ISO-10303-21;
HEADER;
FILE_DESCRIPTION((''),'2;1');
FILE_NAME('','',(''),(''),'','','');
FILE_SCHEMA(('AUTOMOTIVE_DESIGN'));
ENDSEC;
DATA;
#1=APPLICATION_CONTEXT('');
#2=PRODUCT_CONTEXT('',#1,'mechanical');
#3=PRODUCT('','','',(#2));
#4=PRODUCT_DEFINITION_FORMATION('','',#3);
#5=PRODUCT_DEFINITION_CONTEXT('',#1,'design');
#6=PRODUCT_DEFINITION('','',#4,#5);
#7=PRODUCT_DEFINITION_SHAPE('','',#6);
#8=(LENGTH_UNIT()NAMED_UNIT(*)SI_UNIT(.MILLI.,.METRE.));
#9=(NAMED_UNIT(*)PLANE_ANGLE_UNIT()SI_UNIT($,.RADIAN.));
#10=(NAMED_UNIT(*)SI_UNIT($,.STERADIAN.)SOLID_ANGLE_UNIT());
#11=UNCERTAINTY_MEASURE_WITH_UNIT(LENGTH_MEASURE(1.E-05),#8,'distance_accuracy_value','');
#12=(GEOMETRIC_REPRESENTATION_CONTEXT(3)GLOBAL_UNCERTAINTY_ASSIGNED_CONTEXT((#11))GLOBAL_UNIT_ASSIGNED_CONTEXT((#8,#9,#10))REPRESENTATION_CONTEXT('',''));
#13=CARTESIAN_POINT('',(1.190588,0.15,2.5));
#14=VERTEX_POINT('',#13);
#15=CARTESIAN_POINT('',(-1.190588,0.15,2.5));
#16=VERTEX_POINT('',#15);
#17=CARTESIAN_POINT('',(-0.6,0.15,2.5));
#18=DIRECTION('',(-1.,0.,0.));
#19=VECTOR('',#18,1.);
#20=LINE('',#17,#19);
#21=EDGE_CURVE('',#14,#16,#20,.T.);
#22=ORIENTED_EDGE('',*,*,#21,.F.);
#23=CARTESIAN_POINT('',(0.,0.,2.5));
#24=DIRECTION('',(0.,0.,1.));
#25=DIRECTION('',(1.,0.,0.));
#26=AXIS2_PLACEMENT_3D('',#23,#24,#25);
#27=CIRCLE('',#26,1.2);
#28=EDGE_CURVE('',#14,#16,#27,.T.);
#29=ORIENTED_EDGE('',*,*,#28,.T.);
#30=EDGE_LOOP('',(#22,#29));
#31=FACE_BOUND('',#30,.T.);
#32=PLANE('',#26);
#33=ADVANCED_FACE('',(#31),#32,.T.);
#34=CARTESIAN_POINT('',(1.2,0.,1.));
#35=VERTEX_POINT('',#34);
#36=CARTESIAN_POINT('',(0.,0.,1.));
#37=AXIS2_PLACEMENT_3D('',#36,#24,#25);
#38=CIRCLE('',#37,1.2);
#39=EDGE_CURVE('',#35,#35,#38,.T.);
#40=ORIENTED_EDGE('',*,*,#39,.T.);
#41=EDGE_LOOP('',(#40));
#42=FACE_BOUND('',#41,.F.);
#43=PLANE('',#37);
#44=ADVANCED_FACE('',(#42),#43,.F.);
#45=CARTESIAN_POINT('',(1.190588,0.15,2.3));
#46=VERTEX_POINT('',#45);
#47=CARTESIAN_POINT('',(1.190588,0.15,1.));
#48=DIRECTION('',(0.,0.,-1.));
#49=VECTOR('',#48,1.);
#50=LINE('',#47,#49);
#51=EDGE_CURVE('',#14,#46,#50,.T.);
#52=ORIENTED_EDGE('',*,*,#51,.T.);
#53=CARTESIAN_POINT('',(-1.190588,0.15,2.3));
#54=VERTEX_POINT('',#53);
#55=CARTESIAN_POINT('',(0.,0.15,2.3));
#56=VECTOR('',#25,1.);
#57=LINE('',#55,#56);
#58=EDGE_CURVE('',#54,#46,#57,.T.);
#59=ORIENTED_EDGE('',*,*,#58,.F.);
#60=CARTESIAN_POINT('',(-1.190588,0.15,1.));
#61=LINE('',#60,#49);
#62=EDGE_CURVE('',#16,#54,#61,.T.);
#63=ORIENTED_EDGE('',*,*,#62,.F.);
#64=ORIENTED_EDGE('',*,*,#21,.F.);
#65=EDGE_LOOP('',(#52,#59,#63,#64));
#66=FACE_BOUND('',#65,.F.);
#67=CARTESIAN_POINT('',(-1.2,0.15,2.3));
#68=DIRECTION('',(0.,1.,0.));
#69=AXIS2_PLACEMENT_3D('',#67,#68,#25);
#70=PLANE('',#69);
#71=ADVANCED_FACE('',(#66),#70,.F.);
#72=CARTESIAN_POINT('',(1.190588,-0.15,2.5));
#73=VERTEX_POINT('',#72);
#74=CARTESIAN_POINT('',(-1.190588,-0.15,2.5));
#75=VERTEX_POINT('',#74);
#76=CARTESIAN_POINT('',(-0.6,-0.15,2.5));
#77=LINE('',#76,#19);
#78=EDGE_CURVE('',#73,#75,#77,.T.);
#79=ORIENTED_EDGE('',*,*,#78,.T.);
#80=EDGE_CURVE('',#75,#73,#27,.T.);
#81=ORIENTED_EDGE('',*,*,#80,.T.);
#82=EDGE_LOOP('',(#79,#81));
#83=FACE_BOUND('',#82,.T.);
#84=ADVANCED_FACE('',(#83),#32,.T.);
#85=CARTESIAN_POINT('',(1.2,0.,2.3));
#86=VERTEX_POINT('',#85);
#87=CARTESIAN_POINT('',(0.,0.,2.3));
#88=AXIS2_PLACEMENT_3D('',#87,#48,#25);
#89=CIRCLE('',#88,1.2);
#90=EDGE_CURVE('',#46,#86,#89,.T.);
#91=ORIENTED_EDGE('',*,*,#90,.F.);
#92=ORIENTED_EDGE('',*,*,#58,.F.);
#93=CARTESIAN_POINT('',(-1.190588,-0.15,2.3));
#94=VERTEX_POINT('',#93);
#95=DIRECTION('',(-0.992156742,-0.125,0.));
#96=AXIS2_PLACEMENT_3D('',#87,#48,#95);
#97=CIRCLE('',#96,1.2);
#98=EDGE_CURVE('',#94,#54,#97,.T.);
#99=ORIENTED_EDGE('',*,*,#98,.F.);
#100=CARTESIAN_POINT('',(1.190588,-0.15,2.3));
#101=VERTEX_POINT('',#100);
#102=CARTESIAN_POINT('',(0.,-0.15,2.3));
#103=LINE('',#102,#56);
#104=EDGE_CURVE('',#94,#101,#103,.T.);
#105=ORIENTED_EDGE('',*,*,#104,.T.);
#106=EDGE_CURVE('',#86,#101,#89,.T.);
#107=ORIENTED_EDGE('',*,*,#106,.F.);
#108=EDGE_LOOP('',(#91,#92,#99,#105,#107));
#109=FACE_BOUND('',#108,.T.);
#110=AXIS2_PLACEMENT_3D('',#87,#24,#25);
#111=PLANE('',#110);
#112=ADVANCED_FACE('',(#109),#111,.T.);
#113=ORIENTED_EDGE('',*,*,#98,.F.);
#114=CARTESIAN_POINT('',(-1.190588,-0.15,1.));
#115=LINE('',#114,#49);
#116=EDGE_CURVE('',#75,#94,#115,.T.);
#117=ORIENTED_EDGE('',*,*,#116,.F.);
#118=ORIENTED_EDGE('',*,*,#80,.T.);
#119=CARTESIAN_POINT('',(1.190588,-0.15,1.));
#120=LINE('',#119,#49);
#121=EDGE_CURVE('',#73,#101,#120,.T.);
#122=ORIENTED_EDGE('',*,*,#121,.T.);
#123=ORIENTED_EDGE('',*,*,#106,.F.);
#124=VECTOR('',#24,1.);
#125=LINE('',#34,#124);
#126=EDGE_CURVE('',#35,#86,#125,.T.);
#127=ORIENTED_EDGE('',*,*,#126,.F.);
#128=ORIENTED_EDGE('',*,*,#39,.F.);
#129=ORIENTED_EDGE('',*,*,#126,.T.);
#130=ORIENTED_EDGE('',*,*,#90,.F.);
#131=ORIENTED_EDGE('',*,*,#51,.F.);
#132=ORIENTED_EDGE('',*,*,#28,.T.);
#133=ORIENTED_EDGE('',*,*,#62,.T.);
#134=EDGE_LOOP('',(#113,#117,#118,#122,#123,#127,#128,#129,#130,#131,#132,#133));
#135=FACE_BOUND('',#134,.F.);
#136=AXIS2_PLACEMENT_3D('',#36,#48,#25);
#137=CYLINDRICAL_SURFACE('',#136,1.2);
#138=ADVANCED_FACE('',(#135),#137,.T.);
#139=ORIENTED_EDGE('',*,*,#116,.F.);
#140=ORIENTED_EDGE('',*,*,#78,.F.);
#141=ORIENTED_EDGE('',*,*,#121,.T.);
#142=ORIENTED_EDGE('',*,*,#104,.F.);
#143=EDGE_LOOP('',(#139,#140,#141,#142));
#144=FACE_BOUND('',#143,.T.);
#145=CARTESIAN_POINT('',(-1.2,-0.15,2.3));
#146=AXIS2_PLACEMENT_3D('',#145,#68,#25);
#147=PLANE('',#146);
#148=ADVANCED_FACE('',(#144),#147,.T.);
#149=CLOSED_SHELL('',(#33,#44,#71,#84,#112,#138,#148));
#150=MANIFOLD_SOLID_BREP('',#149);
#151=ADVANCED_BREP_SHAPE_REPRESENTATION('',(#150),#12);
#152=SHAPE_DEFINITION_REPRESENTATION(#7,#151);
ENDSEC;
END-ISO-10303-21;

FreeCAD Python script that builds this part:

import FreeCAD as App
import Part
import Sketcher

V = App.Vector


def add_polygon(sketch, points):
    """Adds a closed chain of lines whose ends are joined by coincident constraints."""
    first, n = sketch.GeometryCount, len(points)
    for a, b in zip(points, points[1:] + points[:1]):
        sketch.addGeometry(Part.LineSegment(App.Vector(*a, 0), App.Vector(*b, 0)), False)
    for i in range(n):
        sketch.addConstraint(Sketcher.Constraint("Coincident", first + i, 2, first + (i + 1) % n, 1))

doc = App.newDocument("Part")
body = doc.addObject("PartDesign::Body", "Body")

# Sketch on XY plane
sketch1 = body.newObject("Sketcher::SketchObject", "Sketch")
sketch1.AttachmentSupport = (doc.getObject("XY_Plane"), [""])
sketch1.MapMode = "FlatFace"
sketch1.AttachmentOffset = App.Placement(V(0, 0, 2.3), App.Rotation())
add_polygon(sketch1, [(-1.2, 0.15), (-1.2, -0.15), (1.2, -0.15), (1.2, 0.15)])  # lines 0-3
sketch1.addConstraint([
    Sketcher.Constraint("Vertical", 0),
    Sketcher.Constraint("Horizontal", 1),
    Sketcher.Constraint("Vertical", 2),
    Sketcher.Constraint("Horizontal", 3),
    Sketcher.Constraint("Symmetric", 0, 2, 2, 2, -1, 1),
    Sketcher.Constraint("DistanceX", 1, 1, 1, 2, 2.4),
    Sketcher.Constraint("DistanceY", 0, 2, 0, 1, 0.3),
])
pad1 = body.newObject("PartDesign::Pad", "Pad")
pad1.Profile = sketch1
pad1.Length = 0.3
body2 = doc.addObject("PartDesign::Body", "Body001")

# Sketch on XY plane
sketch2 = body2.newObject("Sketcher::SketchObject", "Sketch001")
sketch2.AttachmentSupport = (doc.getObject("XY_Plane001"), [""])
sketch2.MapMode = "FlatFace"
sketch2.AttachmentOffset = App.Placement(V(0, 0, 1), App.Rotation())
sketch2.addGeometry(Part.Circle(V(0, 0, 0), V(0, 0, 1), 1.2), False)
sketch2.addConstraint([
    Sketcher.Constraint("Coincident", 0, 3, -1, 1),
    Sketcher.Constraint("Diameter", 0, 2.4),
])
pad2 = body2.newObject("PartDesign::Pad", "Pad001")
pad2.Profile = sketch2
pad2.Length = 1.5
doc.recompute()

boolean = body2.newObject("PartDesign::Boolean", "Boolean")
boolean.Type = "Cut"
boolean.addObjects([body])

doc.recompute()
